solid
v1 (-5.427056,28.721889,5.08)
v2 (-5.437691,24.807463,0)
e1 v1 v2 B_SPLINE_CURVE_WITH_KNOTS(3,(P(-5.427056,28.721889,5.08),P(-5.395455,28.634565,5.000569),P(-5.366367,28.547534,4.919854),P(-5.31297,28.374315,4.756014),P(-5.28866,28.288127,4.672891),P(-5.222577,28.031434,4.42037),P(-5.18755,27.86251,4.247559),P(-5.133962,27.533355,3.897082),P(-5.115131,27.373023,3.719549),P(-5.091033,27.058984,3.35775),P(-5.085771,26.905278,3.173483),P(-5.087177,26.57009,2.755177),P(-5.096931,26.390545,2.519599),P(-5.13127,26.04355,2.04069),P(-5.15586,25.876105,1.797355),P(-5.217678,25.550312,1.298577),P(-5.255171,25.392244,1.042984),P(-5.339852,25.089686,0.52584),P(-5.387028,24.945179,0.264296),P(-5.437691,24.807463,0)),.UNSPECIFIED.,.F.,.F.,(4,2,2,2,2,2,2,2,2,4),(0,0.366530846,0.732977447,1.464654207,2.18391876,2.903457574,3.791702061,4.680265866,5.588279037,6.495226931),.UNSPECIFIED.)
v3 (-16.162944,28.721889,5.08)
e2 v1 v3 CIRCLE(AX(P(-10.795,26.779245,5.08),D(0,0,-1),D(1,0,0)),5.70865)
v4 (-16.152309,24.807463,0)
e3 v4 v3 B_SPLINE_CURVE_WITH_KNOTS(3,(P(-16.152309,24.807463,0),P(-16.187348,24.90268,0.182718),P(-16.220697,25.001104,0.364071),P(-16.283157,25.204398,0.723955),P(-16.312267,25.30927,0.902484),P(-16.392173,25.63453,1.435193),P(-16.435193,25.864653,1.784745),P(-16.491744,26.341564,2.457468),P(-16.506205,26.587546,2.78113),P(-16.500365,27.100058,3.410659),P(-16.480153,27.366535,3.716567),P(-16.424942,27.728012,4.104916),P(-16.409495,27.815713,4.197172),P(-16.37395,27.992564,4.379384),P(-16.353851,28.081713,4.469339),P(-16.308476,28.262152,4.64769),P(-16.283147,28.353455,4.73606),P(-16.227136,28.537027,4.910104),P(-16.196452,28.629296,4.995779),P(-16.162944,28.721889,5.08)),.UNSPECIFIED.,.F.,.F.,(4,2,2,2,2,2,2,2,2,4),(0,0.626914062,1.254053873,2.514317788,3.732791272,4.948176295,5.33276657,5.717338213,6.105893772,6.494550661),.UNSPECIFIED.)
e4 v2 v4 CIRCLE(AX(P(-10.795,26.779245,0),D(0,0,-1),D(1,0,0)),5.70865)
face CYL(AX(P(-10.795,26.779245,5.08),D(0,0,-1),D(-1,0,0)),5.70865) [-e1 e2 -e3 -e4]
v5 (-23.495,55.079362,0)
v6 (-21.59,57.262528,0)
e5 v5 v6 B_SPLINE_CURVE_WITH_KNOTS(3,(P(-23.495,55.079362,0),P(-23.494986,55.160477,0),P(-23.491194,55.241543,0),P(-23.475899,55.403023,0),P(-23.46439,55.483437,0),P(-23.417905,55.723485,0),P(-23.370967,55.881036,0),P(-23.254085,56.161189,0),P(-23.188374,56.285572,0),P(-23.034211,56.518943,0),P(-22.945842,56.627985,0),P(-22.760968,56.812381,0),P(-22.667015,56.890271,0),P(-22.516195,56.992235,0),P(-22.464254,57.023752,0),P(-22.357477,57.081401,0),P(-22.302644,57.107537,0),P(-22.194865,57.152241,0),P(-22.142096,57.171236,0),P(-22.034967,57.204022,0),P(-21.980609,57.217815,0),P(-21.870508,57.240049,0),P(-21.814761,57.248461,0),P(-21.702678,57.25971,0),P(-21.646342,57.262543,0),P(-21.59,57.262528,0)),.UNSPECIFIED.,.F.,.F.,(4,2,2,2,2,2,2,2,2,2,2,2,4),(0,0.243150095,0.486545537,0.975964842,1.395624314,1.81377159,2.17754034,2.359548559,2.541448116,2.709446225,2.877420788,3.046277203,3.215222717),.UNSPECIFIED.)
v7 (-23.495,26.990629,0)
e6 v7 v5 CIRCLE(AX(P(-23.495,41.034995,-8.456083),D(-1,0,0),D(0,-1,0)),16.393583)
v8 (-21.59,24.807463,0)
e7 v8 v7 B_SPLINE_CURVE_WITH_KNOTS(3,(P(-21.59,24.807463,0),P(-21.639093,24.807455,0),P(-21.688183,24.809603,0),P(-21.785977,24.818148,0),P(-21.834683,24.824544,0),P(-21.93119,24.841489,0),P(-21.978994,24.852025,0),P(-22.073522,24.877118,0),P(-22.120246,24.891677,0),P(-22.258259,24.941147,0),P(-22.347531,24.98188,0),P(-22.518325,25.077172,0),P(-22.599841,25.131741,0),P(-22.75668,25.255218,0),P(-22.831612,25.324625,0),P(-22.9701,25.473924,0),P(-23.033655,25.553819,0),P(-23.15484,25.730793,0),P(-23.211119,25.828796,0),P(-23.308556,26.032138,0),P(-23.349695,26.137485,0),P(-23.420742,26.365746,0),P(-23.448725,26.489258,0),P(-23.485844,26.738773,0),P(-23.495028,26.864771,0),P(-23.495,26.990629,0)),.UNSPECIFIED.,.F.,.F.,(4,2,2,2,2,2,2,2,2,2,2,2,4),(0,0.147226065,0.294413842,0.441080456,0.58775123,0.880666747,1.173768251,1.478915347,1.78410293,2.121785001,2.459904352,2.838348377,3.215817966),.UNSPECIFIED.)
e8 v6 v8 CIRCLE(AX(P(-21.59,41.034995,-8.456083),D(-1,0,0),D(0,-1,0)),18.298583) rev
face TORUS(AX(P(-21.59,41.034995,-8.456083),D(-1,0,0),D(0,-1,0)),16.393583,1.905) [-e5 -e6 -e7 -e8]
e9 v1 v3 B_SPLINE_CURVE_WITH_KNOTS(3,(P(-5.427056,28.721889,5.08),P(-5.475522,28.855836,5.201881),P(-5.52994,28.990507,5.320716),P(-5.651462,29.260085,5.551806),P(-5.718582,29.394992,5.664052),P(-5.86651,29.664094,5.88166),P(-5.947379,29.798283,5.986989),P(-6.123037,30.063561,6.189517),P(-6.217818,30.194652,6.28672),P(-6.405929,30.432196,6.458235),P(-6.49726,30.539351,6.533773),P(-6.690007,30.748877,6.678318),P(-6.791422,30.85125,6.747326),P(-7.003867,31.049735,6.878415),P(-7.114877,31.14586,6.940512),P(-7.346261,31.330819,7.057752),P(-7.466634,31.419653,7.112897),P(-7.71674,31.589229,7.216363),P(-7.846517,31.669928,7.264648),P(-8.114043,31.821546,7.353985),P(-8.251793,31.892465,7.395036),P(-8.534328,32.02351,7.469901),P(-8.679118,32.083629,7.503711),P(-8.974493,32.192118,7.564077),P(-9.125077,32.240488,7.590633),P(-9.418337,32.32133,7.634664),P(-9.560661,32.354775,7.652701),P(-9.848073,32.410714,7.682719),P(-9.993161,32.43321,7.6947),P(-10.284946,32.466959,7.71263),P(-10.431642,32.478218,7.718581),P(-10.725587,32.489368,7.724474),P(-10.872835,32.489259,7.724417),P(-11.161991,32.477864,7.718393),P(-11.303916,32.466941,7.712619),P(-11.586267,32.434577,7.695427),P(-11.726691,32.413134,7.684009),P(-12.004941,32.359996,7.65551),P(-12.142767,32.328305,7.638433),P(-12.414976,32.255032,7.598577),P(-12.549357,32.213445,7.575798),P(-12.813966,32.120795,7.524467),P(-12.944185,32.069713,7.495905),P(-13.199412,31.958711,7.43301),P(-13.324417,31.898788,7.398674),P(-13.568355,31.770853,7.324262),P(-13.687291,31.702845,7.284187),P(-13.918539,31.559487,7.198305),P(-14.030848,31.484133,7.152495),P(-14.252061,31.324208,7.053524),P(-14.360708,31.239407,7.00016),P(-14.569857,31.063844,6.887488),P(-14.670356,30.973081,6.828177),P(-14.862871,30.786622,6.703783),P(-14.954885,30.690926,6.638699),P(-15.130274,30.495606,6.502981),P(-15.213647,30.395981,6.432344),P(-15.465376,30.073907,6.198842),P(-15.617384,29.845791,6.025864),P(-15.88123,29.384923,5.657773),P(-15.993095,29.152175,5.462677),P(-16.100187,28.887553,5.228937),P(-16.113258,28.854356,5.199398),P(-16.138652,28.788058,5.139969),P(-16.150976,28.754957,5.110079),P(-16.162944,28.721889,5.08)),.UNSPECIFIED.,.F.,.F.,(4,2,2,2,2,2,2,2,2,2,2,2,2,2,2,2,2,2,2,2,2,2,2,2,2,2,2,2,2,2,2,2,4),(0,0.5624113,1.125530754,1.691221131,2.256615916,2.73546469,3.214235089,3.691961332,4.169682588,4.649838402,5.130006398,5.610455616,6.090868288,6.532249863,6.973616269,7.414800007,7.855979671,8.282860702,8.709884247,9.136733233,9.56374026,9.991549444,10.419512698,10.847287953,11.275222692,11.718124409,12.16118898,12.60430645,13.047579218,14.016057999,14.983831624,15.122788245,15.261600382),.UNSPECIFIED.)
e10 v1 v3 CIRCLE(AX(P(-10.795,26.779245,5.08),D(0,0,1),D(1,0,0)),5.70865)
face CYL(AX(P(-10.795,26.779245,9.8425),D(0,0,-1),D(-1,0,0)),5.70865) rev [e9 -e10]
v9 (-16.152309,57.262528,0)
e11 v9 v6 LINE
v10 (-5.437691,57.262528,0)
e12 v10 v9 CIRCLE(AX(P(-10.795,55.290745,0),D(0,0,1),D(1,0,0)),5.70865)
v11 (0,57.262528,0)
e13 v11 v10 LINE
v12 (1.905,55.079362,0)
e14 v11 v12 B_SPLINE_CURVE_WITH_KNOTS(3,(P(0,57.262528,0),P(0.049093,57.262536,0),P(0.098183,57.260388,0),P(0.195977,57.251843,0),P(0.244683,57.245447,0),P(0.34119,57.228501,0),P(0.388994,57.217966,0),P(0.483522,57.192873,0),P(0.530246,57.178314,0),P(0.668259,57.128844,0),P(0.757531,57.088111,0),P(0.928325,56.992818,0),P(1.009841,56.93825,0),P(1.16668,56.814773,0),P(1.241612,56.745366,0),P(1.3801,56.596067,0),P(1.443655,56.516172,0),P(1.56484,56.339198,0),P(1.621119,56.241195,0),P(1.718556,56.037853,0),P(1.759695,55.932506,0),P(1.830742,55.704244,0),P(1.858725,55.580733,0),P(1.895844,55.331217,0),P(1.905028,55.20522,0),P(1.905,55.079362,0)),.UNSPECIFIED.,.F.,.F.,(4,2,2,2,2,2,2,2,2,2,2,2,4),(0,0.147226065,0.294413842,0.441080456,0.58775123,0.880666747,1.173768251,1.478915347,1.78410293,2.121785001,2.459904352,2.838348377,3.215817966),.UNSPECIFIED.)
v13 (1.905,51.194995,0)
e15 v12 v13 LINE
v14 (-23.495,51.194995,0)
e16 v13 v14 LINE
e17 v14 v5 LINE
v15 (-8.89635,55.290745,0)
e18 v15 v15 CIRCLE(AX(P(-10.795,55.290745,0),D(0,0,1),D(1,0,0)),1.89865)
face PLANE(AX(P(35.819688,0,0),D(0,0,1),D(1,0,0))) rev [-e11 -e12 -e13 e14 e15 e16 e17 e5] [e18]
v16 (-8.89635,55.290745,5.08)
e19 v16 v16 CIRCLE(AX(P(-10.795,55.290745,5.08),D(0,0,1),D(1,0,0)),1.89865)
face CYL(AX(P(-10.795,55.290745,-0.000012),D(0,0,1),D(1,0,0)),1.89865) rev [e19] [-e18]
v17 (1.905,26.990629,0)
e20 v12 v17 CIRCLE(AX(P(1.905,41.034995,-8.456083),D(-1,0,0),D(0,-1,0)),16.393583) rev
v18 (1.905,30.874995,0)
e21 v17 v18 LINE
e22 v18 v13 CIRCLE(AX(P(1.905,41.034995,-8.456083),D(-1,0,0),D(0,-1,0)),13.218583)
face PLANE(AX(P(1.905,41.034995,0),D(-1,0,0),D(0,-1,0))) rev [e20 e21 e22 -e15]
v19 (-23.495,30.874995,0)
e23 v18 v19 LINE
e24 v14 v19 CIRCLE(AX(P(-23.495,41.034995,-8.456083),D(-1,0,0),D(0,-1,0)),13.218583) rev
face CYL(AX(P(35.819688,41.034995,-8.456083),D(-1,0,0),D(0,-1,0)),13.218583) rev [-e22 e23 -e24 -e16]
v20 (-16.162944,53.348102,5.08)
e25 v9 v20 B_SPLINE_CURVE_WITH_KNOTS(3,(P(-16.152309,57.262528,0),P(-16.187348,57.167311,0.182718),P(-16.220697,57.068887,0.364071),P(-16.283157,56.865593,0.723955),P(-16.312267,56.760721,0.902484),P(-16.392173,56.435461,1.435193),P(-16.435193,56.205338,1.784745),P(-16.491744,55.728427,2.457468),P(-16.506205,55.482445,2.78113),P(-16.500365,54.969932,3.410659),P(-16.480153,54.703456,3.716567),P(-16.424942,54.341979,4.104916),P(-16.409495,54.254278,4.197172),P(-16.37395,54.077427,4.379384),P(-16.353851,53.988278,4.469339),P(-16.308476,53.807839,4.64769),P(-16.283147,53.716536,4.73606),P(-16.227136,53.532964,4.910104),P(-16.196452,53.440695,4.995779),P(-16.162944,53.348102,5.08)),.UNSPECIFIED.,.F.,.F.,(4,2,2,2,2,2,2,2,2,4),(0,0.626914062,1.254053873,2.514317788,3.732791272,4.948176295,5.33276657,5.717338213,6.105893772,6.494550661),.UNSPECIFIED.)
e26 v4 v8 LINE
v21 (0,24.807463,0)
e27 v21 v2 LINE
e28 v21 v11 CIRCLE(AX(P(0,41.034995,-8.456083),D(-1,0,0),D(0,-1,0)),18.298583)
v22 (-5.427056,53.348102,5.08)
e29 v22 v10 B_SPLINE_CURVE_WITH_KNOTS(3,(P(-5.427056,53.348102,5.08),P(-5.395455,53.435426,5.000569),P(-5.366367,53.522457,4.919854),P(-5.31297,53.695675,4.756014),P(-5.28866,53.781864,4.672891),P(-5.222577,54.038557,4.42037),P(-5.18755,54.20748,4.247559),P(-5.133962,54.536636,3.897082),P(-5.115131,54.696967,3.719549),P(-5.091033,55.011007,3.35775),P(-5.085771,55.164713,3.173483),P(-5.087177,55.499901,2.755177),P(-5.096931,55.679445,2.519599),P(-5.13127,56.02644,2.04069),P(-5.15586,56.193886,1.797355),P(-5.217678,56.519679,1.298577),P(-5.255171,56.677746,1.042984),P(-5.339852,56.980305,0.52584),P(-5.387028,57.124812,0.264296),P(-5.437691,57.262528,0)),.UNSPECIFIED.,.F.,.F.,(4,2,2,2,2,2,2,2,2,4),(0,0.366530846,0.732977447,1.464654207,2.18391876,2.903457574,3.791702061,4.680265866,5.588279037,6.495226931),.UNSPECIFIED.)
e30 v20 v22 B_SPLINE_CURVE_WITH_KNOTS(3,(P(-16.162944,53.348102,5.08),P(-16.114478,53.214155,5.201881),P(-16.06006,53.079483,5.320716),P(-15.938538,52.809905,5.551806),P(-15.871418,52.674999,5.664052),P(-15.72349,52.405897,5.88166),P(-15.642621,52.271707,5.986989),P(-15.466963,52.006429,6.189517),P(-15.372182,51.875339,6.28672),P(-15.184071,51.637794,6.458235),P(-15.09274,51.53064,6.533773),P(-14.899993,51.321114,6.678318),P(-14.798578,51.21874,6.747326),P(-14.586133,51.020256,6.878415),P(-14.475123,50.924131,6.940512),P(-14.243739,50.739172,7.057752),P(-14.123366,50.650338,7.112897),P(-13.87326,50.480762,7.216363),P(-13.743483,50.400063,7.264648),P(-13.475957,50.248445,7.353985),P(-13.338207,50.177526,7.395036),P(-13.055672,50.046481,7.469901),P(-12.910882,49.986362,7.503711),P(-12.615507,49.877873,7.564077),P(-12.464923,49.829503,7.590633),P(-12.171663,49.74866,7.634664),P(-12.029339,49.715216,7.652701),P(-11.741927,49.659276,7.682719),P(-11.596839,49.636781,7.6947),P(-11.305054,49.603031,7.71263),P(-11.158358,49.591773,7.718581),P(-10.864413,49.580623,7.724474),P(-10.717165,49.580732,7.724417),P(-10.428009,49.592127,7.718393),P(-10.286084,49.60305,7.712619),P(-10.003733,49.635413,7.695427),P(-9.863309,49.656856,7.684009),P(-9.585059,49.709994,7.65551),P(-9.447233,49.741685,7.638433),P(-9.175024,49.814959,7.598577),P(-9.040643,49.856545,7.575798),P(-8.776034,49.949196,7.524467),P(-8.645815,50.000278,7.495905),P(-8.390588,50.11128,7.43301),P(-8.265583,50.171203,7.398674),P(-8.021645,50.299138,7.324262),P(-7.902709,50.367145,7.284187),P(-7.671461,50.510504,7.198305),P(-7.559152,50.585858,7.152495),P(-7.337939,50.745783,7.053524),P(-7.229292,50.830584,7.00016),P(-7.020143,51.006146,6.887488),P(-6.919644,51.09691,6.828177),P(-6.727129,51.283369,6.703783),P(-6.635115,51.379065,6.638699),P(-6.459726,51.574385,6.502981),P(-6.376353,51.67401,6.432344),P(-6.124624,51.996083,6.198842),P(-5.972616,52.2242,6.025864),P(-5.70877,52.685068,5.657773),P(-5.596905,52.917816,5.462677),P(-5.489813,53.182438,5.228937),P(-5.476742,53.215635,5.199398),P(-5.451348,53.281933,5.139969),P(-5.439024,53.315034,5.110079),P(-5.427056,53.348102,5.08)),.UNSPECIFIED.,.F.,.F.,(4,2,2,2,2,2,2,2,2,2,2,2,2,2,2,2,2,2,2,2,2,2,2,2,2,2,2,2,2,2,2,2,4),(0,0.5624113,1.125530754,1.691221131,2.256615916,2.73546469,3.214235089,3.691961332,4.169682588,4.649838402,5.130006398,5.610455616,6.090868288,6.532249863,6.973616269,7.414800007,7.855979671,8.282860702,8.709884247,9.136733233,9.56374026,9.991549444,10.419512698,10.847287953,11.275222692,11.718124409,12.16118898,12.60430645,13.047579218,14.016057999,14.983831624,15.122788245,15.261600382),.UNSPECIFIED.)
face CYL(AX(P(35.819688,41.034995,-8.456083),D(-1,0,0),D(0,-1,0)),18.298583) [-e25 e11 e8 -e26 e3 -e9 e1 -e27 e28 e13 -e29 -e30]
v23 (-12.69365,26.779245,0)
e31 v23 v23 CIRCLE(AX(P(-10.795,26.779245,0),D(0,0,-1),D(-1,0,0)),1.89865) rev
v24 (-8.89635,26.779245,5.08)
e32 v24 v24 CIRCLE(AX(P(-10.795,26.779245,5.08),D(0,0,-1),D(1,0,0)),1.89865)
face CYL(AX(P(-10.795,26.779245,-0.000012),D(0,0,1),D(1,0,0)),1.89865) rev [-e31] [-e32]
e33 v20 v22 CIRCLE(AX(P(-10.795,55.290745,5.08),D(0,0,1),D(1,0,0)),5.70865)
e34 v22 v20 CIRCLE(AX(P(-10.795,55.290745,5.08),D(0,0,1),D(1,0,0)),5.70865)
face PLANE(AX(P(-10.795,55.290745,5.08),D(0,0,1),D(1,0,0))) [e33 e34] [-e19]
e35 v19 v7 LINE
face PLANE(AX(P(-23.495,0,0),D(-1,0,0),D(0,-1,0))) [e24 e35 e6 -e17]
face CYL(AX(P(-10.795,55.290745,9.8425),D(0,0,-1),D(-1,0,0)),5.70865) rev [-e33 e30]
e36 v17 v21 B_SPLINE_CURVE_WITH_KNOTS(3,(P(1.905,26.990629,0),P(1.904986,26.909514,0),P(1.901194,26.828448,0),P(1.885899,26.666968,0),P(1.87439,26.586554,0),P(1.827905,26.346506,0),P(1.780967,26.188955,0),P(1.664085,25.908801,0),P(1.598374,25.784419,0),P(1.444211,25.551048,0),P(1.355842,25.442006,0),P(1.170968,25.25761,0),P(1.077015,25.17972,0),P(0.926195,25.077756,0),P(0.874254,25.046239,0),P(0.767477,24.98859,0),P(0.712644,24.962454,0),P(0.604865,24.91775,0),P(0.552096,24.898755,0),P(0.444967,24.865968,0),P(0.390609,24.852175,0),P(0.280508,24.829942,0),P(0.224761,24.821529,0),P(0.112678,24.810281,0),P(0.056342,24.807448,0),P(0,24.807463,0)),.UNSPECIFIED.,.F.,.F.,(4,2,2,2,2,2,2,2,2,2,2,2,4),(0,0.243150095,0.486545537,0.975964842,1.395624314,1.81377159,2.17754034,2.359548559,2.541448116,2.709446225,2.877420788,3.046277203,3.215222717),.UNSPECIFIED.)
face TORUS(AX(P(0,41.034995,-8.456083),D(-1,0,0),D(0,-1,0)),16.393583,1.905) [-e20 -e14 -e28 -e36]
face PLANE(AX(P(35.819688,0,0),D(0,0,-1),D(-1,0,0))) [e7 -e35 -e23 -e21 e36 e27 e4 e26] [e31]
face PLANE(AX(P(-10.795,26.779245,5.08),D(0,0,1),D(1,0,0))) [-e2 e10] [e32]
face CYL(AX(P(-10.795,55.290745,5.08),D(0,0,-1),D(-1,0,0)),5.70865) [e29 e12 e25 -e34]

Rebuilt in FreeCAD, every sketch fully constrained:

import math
import FreeCAD as App
import Part
import Sketcher
Q = App.Units.Quantity


def edges_at(feature, points):
    """Names of the edges that pass closest to the given points."""
    edges = feature.Shape.Edges
    near = lambda p: min(range(len(edges)), key=lambda i: edges[i].distToShape(Part.Vertex(*p))[0])
    return sorted({f"Edge{near(p) + 1}" for p in points})

doc = App.newDocument("Part")
params = doc.addObject("Spreadsheet::Sheet", "Params")
for row, (alias, value) in enumerate([
    ("pad1_length", "1 in"),
    ("pocket1_length", "11.8425 mm"),
    ("pad2_length", "0.2 in"),
    ("sketch5_width", "0.8 in"),
    ("fillet_radius", "0.075 in"),
], start=1):
    params.set(f"A{row}", alias)
    params.set(f"B{row}", "=" + value)
    params.setAlias(f"B{row}", alias)

body = doc.addObject("PartDesign::Body", "Body")

sketch1 = body.newObject("Sketcher::SketchObject", "Sketch")
sketch1.AttachmentSupport = (doc.getObject("YZ_Plane"), [""])
sketch1.MapMode = "FlatFace"
sketch1.AttachmentOffset = App.Placement(App.Vector(0, 0, -0.925 * 25.4), App.Rotation())
sketch1.addGeometry([
    Part.ArcOfCircle(Part.Circle(App.Vector(41.034995, -8.456083, 0), App.Vector(0, 0, 1), 18.298583), math.radians(27.523787), math.radians(152.476213)),
    Part.LineSegment(App.Vector(57.262528, 0, 0), App.Vector(51.194995, 0, 0)),
    Part.ArcOfCircle(Part.Circle(App.Vector(41.034995, -8.456083, 0), App.Vector(0, 0, 1), 13.218583), math.radians(39.77033), math.radians(140.22967)),
    Part.LineSegment(App.Vector(30.874995, 0, 0), App.Vector(24.807463, 0, 0)),
], False)
sketch1.addConstraint([
    Sketcher.Constraint("Coincident", 0, 1, 1, 1),
    Sketcher.Constraint("Coincident", 1, 2, 2, 1),
    Sketcher.Constraint("Coincident", 2, 2, 3, 1),
    Sketcher.Constraint("Coincident", 3, 2, 0, 2),
    Sketcher.Constraint("Horizontal", 1),
    Sketcher.Constraint("Horizontal", 3),
    Sketcher.Constraint("Coincident", 2, 3, 0, 3),
    Sketcher.Constraint("PointOnObject", 0, 1, -1),
    Sketcher.Constraint("PointOnObject", 2, 2, -1),
    Sketcher.Constraint("DistanceX", 0, 3, 1, 2, Q("0.4 in")),
    Sketcher.Constraint("Radius", 0, Q("18.298583 mm")),
    Sketcher.Constraint("Radius", 2, Q("13.218583 mm")),
    Sketcher.Constraint("DistanceX", -1, 1, 0, 3, Q("41.034995 mm")),
])
pad1 = body.newObject("PartDesign::Pad", "Pad")
pad1.Profile = sketch1
pad1.setExpression("Length", "Params.pad1_length")

sketch2 = body.newObject("Sketcher::SketchObject", "Sketch001")
sketch2.AttachmentSupport = (doc.getObject("XY_Plane"), [""])
sketch2.MapMode = "FlatFace"
sketch2.AttachmentOffset = App.Placement(App.Vector(0, 0, -1), App.Rotation())
sketch2.addGeometry(Part.Circle(App.Vector(-10.795, 55.290745, 0), App.Vector(0, 0, 1), 1.89865), False)
sketch2.addConstraint([
    Sketcher.Constraint("Diameter", 0, Q("0.1495 in")),
    Sketcher.Constraint("DistanceX", 0, 3, -1, 1, Q("0.425 in")),
    Sketcher.Constraint("DistanceY", -1, 1, 0, 3, Q("55.290745 mm")),
])
pocket1 = body.newObject("PartDesign::Pocket", "Pocket")
pocket1.Profile = sketch2
pocket1.setExpression("Length", "Params.pocket1_length")
pocket1.Reversed = True

sketch3 = body.newObject("Sketcher::SketchObject", "Sketch002")
sketch3.AttachmentSupport = (doc.getObject("XY_Plane"), [""])
sketch3.MapMode = "FlatFace"
sketch3.addGeometry([
    Part.Circle(App.Vector(-10.795, 55.290745, 0), App.Vector(0, 0, 1), 5.70865),
    Part.Circle(App.Vector(-10.795, 55.290745, 0), App.Vector(0, 0, 1), 1.89865),
], False)
sketch3.addConstraint([
    Sketcher.Constraint("Coincident", 1, 3, 0, 3),
    Sketcher.Constraint("Diameter", 0, Q("0.4495 in")),
    Sketcher.Constraint("Diameter", 1, Q("0.1495 in")),
    Sketcher.Constraint("DistanceX", 0, 3, -1, 1, Q("0.425 in")),
    Sketcher.Constraint("DistanceY", -1, 1, 0, 3, Q("55.290745 mm")),
])
pad2 = body.newObject("PartDesign::Pad", "Pad001")
pad2.Profile = sketch3
pad2.setExpression("Length", "Params.pad2_length")

sketch4 = body.newObject("Sketcher::SketchObject", "Sketch003")
sketch4.AttachmentSupport = (doc.getObject("XY_Plane"), [""])
sketch4.MapMode = "FlatFace"
sketch4.AttachmentOffset = App.Placement(App.Vector(0, 0, 0.2 * 25.4), App.Rotation())
sketch4.addGeometry([
    Part.Circle(App.Vector(-10.795, 55.290745, 0), App.Vector(0, 0, 1), 5.70865),
    Part.Circle(App.Vector(-10.795, 55.290745, 0), App.Vector(0, 0, 1), 1.89865),
], False)
sketch4.addConstraint([
    Sketcher.Constraint("Coincident", 1, 3, 0, 3),
    Sketcher.Constraint("Diameter", 0, Q("0.4495 in")),
    Sketcher.Constraint("Diameter", 1, Q("0.1495 in")),
    Sketcher.Constraint("DistanceX", 0, 3, -1, 1, Q("0.425 in")),
    Sketcher.Constraint("DistanceY", -1, 1, 0, 3, Q("55.290745 mm")),
])
pocket2 = body.newObject("PartDesign::Pocket", "Pocket001")
pocket2.Profile = sketch4
pocket2.Type = "ThroughAll"
pocket2.Reversed = True
doc.recompute()

datumplane = body.newObject("PartDesign::Plane", "DatumPlane")
datumplane.AttachmentSupport = (doc.getObject("XZ_Plane"), [""])
datumplane.MapMode = "FlatFace"
datumplane.AttachmentOffset = App.Placement(App.Vector(0, 0, -41.034995), App.Rotation())
mirrored = body.newObject("PartDesign::Mirrored", "Mirrored")
mirrored.Originals = [pocket1, pad2, pocket2]
mirrored.MirrorPlane = (datumplane, [""])
body.Tip = mirrored

sketch5 = body.newObject("Sketcher::SketchObject", "Sketch004")
sketch5.AttachmentSupport = (doc.getObject("YZ_Plane"), [""])
sketch5.MapMode = "FlatFace"
sketch5.AttachmentOffset = App.Placement(App.Vector(0, 0, -0.925 * 25.4), App.Rotation())
sketch5.addGeometry([
    Part.ArcOfCircle(Part.Circle(App.Vector(41.034995, -8.456083, 0), App.Vector(0, 0, 1), 13.218583), math.radians(39.77033), math.radians(140.22967)),
    Part.LineSegment(App.Vector(51.194995, 0, 0), App.Vector(30.874995, 0, 0)),
], False)
sketch5.addConstraint([
    Sketcher.Constraint("Coincident", 0, 1, 1, 1),
    Sketcher.Constraint("Coincident", 1, 2, 0, 2),
    Sketcher.Constraint("Horizontal", 1),
    Sketcher.Constraint("PointOnObject", 0, 1, -1),
    Sketcher.Constraint("DistanceX", 1, 2, 1, 1, Q("0.8 in")),
    Sketcher.Constraint("Radius", 0, Q("13.218583 mm")),
    Sketcher.Constraint("DistanceX", -1, 1, 0, 3, Q("41.034995 mm")),
])
sketch5.setExpression("Constraints[4]", "Params.sketch5_width")
pocket3 = body.newObject("PartDesign::Pocket", "Pocket002")
pocket3.Profile = sketch5
pocket3.Type = "ThroughAll"
pocket3.Reversed = True
doc.recompute()

fillet = body.newObject("PartDesign::Fillet", "Fillet")
fillet.Base = (pocket3, edges_at(pocket3, [(1.905, 41.035, 9.842), (-23.495, 41.035, 9.842)]))
fillet.setExpression("Radius", "Params.fillet_radius")

doc.recompute()
